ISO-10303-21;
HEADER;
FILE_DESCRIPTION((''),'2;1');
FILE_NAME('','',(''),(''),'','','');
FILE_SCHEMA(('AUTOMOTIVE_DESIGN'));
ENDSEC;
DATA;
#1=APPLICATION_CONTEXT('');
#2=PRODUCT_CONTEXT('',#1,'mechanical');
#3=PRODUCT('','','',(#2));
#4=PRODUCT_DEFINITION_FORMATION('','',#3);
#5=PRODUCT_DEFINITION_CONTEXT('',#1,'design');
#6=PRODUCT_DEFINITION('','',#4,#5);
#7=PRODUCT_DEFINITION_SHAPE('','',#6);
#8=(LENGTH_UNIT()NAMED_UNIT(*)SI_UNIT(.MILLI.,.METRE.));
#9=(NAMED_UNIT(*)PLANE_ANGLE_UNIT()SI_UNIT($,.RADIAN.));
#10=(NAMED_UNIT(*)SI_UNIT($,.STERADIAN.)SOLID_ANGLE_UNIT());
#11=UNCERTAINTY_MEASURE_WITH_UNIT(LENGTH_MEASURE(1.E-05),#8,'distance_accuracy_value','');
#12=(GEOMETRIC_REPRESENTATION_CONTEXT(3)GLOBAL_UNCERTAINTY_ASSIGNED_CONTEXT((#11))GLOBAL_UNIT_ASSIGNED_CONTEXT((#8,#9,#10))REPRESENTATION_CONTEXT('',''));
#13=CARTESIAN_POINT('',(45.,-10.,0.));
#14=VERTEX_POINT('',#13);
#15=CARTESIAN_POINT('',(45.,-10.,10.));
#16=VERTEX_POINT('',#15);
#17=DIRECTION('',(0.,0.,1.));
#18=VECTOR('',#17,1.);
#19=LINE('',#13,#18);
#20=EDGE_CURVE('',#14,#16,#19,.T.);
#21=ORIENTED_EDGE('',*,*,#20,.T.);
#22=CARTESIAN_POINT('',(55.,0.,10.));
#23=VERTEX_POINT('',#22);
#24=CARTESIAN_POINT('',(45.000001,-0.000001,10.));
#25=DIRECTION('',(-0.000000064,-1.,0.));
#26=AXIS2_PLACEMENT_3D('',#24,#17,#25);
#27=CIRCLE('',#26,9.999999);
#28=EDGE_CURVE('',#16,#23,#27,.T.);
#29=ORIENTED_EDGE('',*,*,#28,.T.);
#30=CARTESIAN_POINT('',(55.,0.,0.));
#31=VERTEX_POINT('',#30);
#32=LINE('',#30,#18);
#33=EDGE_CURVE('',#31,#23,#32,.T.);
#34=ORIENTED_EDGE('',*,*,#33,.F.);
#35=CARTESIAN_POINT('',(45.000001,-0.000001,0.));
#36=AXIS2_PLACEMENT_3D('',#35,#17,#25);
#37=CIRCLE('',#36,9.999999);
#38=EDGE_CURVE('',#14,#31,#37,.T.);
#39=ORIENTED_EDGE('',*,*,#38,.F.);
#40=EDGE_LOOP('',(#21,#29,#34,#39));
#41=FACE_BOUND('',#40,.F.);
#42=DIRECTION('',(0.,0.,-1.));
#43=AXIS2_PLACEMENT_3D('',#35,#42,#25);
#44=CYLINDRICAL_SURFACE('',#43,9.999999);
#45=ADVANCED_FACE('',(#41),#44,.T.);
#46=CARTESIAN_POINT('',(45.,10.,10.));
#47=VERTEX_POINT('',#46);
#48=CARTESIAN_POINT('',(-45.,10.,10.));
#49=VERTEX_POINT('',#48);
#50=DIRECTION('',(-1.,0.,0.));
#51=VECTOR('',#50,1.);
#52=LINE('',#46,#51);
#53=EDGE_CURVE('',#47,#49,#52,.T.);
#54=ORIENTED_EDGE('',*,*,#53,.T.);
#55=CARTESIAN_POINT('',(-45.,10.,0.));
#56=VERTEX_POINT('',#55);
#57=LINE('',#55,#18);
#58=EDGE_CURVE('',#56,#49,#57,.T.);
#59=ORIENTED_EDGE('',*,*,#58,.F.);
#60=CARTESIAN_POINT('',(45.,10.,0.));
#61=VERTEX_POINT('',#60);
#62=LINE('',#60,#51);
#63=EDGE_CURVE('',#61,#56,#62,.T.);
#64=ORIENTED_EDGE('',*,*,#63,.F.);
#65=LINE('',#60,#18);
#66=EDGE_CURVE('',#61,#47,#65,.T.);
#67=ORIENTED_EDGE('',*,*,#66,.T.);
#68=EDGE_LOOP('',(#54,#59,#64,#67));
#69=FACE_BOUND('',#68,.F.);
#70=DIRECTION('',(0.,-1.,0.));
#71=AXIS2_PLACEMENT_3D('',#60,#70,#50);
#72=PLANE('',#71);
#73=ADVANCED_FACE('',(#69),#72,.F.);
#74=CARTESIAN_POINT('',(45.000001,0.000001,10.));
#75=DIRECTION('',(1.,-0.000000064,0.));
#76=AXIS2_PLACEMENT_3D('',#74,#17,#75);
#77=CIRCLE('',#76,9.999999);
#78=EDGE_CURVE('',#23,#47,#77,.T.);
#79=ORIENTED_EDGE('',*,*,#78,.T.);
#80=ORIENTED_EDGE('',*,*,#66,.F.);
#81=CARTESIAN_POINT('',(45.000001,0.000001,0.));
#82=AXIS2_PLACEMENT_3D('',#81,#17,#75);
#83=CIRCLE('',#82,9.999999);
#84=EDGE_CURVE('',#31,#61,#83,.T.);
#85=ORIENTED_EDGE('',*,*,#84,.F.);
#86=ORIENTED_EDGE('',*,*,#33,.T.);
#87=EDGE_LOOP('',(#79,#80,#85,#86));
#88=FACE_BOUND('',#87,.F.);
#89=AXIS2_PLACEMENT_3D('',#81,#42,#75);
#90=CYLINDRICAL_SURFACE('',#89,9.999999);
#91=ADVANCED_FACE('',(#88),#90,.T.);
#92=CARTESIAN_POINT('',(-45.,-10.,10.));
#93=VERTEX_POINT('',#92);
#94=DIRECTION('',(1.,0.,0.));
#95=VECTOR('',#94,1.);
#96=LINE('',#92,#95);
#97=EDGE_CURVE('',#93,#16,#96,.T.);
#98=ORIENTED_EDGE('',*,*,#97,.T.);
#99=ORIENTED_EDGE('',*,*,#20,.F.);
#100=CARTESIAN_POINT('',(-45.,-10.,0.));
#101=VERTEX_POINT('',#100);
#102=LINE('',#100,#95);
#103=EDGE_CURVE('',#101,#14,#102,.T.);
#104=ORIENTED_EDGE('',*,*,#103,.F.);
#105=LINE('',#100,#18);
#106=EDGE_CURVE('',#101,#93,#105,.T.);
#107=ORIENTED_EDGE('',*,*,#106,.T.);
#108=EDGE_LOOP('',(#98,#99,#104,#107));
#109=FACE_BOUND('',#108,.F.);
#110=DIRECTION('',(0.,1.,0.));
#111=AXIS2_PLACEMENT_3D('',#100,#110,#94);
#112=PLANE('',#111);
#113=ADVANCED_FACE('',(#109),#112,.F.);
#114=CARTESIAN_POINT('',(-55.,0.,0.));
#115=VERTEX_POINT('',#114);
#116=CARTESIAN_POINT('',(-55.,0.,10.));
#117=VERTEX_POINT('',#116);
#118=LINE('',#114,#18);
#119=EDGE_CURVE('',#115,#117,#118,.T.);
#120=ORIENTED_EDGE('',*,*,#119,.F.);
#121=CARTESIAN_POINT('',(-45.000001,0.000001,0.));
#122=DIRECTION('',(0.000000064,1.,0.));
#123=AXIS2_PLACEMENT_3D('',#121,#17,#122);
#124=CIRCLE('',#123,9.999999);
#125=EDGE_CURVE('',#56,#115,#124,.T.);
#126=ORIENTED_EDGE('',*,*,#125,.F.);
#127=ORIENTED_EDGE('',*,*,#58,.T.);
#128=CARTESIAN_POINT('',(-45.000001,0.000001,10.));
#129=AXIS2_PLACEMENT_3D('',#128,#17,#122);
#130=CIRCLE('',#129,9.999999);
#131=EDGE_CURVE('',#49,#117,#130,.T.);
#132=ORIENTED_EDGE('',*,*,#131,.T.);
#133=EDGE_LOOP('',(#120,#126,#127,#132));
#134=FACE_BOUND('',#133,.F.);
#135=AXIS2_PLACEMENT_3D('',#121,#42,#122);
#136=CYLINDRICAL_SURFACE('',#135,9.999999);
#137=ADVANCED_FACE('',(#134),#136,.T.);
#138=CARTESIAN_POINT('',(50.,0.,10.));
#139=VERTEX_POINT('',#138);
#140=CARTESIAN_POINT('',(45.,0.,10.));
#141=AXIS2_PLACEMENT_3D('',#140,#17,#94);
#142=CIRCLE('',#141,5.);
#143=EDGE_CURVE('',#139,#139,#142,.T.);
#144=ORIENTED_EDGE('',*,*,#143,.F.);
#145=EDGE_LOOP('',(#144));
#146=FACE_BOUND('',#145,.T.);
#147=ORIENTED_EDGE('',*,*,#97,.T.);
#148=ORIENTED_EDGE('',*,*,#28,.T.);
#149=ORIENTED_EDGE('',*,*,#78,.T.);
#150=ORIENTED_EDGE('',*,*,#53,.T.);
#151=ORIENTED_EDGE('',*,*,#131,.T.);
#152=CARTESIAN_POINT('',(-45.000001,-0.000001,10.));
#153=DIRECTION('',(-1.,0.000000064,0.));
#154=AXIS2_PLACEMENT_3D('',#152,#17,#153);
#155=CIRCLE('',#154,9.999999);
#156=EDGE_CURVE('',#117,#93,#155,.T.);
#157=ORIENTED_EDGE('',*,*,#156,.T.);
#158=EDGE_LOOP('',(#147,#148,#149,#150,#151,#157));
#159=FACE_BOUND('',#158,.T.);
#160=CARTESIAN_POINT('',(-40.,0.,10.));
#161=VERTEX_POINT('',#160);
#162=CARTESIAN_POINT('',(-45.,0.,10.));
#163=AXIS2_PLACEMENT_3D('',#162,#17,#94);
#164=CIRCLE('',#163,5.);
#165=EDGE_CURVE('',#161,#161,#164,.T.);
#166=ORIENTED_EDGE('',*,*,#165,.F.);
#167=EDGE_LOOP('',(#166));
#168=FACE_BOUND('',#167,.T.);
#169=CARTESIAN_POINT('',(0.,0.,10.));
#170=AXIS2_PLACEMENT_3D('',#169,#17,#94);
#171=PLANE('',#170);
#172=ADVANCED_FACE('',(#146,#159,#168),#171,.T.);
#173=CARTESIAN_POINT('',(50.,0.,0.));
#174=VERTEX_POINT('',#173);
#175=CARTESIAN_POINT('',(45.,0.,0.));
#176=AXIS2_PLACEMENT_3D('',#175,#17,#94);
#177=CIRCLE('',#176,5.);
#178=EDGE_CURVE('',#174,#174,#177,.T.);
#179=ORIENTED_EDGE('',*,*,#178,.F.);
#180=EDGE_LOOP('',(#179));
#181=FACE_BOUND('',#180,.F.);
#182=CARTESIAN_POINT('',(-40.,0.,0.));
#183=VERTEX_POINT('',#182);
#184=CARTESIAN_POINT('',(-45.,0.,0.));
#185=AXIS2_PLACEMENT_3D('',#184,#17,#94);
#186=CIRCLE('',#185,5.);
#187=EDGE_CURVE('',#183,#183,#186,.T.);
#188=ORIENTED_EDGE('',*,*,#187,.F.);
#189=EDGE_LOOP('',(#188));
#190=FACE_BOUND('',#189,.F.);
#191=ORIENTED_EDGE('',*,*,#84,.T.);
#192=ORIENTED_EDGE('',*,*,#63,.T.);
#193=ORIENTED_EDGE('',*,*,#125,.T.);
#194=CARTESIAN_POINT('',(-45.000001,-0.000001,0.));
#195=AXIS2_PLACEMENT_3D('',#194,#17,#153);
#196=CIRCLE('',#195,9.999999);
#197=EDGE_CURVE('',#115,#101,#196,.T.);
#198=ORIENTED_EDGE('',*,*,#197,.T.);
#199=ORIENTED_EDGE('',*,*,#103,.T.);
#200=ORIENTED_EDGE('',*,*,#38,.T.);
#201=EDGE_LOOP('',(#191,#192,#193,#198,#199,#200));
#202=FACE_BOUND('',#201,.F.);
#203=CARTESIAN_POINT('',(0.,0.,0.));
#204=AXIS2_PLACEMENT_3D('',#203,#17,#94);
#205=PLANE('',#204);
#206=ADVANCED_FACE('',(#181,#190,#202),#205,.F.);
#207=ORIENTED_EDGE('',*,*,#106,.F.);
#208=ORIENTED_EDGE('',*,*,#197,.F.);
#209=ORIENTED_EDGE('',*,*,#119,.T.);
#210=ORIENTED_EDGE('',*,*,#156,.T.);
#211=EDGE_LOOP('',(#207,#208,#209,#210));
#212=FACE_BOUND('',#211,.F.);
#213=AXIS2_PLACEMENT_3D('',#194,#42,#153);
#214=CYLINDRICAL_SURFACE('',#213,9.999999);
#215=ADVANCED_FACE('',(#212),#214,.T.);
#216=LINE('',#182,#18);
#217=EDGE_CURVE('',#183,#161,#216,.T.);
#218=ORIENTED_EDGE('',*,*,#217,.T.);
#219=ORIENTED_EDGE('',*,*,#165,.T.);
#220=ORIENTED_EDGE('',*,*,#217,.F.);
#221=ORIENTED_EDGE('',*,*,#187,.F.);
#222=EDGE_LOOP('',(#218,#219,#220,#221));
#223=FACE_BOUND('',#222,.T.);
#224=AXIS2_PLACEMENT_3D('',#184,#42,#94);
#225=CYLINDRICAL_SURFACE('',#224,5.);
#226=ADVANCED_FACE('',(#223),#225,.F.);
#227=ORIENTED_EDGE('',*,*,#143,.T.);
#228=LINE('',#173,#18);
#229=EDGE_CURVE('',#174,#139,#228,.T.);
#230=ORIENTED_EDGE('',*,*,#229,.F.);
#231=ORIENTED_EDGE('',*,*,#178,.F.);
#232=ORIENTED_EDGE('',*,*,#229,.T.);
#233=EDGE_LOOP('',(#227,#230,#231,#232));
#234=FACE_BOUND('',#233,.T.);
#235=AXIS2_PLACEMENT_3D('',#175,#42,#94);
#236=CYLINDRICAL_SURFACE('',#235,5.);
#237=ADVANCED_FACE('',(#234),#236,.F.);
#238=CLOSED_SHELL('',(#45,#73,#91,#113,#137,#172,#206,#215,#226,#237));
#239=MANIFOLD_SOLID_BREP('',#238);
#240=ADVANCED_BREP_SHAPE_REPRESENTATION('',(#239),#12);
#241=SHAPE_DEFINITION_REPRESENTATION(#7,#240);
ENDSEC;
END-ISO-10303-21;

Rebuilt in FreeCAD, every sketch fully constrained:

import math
import FreeCAD as App
import Part
import Sketcher

doc = App.newDocument("Part")
params = doc.addObject("Spreadsheet::Sheet", "Params")
for row, (alias, value) in enumerate([
    ("sketch1_diameter", "10 mm"),
    ("sketch1_radius", "9.999999 mm"),
    ("sketch1_width", "90 mm"),
    ("pad1_length", "10 mm"),
], start=1):
    params.set(f"A{row}", alias)
    params.set(f"B{row}", "=" + value)
    params.setAlias(f"B{row}", alias)

body = doc.addObject("PartDesign::Body", "Body")

# Sketch on XY plane
sketch1 = body.newObject("Sketcher::SketchObject", "Sketch")
sketch1.AttachmentSupport = (doc.getObject("XY_Plane"), [""])
sketch1.MapMode = "FlatFace"
sketch1.addGeometry([
    Part.ArcOfCircle(Part.Circle(App.Vector(45, 0, 0), App.Vector(0, 0, 1), 10), math.radians(0), math.radians(90)),  # 0
    Part.LineSegment(App.Vector(45, 10, 0), App.Vector(-45, 10, 0)),  # 1
    Part.ArcOfCircle(Part.Circle(App.Vector(-45, 0, 0), App.Vector(0, 0, 1), 10), math.radians(90), math.radians(180)),  # 2
    Part.ArcOfCircle(Part.Circle(App.Vector(-45, 0, 0), App.Vector(0, 0, 1), 10), math.radians(180), math.radians(270)),  # 3
    Part.LineSegment(App.Vector(-45, -10, 0), App.Vector(45, -10, 0)),  # 4
    Part.ArcOfCircle(Part.Circle(App.Vector(45, 0, 0), App.Vector(0, 0, 1), 10), math.radians(-90), math.radians(0)),  # 5
    Part.Circle(App.Vector(-45, 0, 0), App.Vector(0, 0, 1), 5),  # 6
    Part.Circle(App.Vector(45, 0, 0), App.Vector(0, 0, 1), 5),  # 7
], False)
sketch1.addConstraint([
    Sketcher.Constraint("Tangent", 0, 2, 1, 1),
    Sketcher.Constraint("Tangent", 1, 2, 2, 1),
    Sketcher.Constraint("Tangent", 2, 2, 3, 1),
    Sketcher.Constraint("Tangent", 3, 2, 4, 1),
    Sketcher.Constraint("Tangent", 4, 2, 5, 1),
    Sketcher.Constraint("Tangent", 5, 2, 0, 1),
    Sketcher.Constraint("Horizontal", 1),
    Sketcher.Constraint("Horizontal", 4),
    Sketcher.Constraint("Coincident", 6, 3, 2, 3),
    Sketcher.Constraint("Coincident", 7, 3, 0, 3),
    Sketcher.Constraint("Equal", 0, 2),
    Sketcher.Constraint("Equal", 2, 3),
    Sketcher.Constraint("Equal", 6, 7),
    Sketcher.Constraint("Symmetric", 0, 3, 2, 3, -1, 1),
    Sketcher.Constraint("PointOnObject", 2, 2, -1),
    Sketcher.Constraint("PointOnObject", 5, 2, -1),
    Sketcher.Constraint("Diameter", 6, 10.0),
    Sketcher.Constraint("Radius", 0, 9.999999),
    Sketcher.Constraint("DistanceX", 1, 2, 1, 1, 90.0),
])
sketch1.setExpression("Constraints[16]", "Params.sketch1_diameter")
sketch1.setExpression("Constraints[17]", "Params.sketch1_radius")
sketch1.setExpression("Constraints[18]", "Params.sketch1_width")
pad1 = body.newObject("PartDesign::Pad", "Pad")
pad1.Profile = sketch1
pad1.setExpression("Length", "Params.pad1_length")

doc.recompute()
